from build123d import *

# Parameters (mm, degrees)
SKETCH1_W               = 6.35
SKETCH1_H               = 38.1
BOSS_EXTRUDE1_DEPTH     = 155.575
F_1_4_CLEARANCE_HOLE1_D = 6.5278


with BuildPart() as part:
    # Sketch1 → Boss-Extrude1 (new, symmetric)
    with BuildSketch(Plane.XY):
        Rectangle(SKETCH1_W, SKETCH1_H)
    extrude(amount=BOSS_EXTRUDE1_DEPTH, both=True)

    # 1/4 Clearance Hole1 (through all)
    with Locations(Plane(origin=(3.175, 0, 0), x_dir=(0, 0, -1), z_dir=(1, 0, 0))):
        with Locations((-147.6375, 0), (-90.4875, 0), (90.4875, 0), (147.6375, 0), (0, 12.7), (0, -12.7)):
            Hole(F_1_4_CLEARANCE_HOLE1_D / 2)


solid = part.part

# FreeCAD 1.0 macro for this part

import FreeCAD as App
import Part
import Sketcher

V = App.Vector
Q = App.Units.Quantity


def add_polygon(sketch, points):
    """Adds a closed chain of lines whose ends are joined by coincident constraints."""
    first, n = sketch.GeometryCount, len(points)
    for a, b in zip(points, points[1:] + points[:1]):
        sketch.addGeometry(Part.LineSegment(App.Vector(*a, 0), App.Vector(*b, 0)), False)
    for i in range(n):
        sketch.addConstraint(Sketcher.Constraint("Coincident", first + i, 2, first + (i + 1) % n, 1))

doc = App.newDocument("Part")
body = doc.addObject("PartDesign::Body", "Body")

# Sketch on XY plane
sketch1 = body.newObject("Sketcher::SketchObject", "Sketch")
sketch1.AttachmentSupport = (doc.getObject("XY_Plane"), [""])
sketch1.MapMode = "FlatFace"
add_polygon(sketch1, [(-3, 19), (-3, -19), (3, -19), (3, 19)])  # lines 0-3
sketch1.addConstraint(Sketcher.Constraint("Vertical", 0))
sketch1.addConstraint(Sketcher.Constraint("Horizontal", 1))
sketch1.addConstraint(Sketcher.Constraint("Vertical", 2))
sketch1.addConstraint(Sketcher.Constraint("Horizontal", 3))
sketch1.addConstraint(Sketcher.Constraint("Symmetric", 0, 2, 2, 2, -1, 1))
sketch1.addConstraint(Sketcher.Constraint("DistanceY", 0, 2, 0, 1, Q("1.5 in")))
sketch1.addConstraint(Sketcher.Constraint("DistanceX", 1, 1, 1, 2, Q("0.25 in")))
pad1 = body.newObject("PartDesign::Pad", "Pad")
pad1.Profile = sketch1
pad1.Length = Q("12.25 in")
pad1.Midplane = True

# Sketch on YZ plane
sketch2 = body.newObject("Sketcher::SketchObject", "Sketch001")
sketch2.AttachmentSupport = (doc.getObject("YZ_Plane"), [""])
sketch2.MapMode = "FlatFace"
sketch2.AttachmentOffset = App.Placement(V(0, 0, 0.125 * 25.4), App.Rotation())
sketch2.addGeometry(Part.Circle(V(0, 147.6, 0), V(0, 0, 1), 3.3), False)
sketch2.addGeometry(Part.Circle(V(0, 90.5, 0), V(0, 0, 1), 3.3), False)
sketch2.addGeometry(Part.Circle(V(0, -90.5, 0), V(0, 0, 1), 3.3), False)
sketch2.addGeometry(Part.Circle(V(0, -147.6, 0), V(0, 0, 1), 3.3), False)
sketch2.addGeometry(Part.Circle(V(12.7, 0, 0), V(0, 0, 1), 3.3), False)
sketch2.addGeometry(Part.Circle(V(-12.7, 0, 0), V(0, 0, 1), 3.3), False)
sketch2.addConstraint(Sketcher.Constraint("Equal", 0, 1))
sketch2.addConstraint(Sketcher.Constraint("Equal", 1, 2))
sketch2.addConstraint(Sketcher.Constraint("Equal", 2, 3))
sketch2.addConstraint(Sketcher.Constraint("Equal", 3, 4))
sketch2.addConstraint(Sketcher.Constraint("Equal", 4, 5))
sketch2.addConstraint(Sketcher.Constraint("Symmetric", 1, 3, 2, 3, -1, 1))
sketch2.addConstraint(Sketcher.Constraint("Symmetric", 0, 3, 3, 3, -1, 1))
sketch2.addConstraint(Sketcher.Constraint("Symmetric", 4, 3, 5, 3, -1, 1))
sketch2.addConstraint(Sketcher.Constraint("PointOnObject", 0, 3, -2))
sketch2.addConstraint(Sketcher.Constraint("PointOnObject", 1, 3, -2))
sketch2.addConstraint(Sketcher.Constraint("PointOnObject", 4, 3, -1))
sketch2.addConstraint(Sketcher.Constraint("Diameter", 0, Q("0.257 in")))
sketch2.addConstraint(Sketcher.Constraint("DistanceX", 5, 3, 4, 3, Q("1 in")))
sketch2.addConstraint(Sketcher.Constraint("DistanceY", 1, 3, 0, 3, Q("2.25 in")))
sketch2.addConstraint(Sketcher.Constraint("DistanceY", -1, 1, 0, 3, Q("5.8125 in")))
doc.recompute()
hole = body.newObject("PartDesign::Hole", "Hole")
hole.Profile = sketch2
hole.ThreadType = "None"
hole.Diameter = Q("0.257 in")
hole.DepthType = "ThroughAll"

doc.recompute()
